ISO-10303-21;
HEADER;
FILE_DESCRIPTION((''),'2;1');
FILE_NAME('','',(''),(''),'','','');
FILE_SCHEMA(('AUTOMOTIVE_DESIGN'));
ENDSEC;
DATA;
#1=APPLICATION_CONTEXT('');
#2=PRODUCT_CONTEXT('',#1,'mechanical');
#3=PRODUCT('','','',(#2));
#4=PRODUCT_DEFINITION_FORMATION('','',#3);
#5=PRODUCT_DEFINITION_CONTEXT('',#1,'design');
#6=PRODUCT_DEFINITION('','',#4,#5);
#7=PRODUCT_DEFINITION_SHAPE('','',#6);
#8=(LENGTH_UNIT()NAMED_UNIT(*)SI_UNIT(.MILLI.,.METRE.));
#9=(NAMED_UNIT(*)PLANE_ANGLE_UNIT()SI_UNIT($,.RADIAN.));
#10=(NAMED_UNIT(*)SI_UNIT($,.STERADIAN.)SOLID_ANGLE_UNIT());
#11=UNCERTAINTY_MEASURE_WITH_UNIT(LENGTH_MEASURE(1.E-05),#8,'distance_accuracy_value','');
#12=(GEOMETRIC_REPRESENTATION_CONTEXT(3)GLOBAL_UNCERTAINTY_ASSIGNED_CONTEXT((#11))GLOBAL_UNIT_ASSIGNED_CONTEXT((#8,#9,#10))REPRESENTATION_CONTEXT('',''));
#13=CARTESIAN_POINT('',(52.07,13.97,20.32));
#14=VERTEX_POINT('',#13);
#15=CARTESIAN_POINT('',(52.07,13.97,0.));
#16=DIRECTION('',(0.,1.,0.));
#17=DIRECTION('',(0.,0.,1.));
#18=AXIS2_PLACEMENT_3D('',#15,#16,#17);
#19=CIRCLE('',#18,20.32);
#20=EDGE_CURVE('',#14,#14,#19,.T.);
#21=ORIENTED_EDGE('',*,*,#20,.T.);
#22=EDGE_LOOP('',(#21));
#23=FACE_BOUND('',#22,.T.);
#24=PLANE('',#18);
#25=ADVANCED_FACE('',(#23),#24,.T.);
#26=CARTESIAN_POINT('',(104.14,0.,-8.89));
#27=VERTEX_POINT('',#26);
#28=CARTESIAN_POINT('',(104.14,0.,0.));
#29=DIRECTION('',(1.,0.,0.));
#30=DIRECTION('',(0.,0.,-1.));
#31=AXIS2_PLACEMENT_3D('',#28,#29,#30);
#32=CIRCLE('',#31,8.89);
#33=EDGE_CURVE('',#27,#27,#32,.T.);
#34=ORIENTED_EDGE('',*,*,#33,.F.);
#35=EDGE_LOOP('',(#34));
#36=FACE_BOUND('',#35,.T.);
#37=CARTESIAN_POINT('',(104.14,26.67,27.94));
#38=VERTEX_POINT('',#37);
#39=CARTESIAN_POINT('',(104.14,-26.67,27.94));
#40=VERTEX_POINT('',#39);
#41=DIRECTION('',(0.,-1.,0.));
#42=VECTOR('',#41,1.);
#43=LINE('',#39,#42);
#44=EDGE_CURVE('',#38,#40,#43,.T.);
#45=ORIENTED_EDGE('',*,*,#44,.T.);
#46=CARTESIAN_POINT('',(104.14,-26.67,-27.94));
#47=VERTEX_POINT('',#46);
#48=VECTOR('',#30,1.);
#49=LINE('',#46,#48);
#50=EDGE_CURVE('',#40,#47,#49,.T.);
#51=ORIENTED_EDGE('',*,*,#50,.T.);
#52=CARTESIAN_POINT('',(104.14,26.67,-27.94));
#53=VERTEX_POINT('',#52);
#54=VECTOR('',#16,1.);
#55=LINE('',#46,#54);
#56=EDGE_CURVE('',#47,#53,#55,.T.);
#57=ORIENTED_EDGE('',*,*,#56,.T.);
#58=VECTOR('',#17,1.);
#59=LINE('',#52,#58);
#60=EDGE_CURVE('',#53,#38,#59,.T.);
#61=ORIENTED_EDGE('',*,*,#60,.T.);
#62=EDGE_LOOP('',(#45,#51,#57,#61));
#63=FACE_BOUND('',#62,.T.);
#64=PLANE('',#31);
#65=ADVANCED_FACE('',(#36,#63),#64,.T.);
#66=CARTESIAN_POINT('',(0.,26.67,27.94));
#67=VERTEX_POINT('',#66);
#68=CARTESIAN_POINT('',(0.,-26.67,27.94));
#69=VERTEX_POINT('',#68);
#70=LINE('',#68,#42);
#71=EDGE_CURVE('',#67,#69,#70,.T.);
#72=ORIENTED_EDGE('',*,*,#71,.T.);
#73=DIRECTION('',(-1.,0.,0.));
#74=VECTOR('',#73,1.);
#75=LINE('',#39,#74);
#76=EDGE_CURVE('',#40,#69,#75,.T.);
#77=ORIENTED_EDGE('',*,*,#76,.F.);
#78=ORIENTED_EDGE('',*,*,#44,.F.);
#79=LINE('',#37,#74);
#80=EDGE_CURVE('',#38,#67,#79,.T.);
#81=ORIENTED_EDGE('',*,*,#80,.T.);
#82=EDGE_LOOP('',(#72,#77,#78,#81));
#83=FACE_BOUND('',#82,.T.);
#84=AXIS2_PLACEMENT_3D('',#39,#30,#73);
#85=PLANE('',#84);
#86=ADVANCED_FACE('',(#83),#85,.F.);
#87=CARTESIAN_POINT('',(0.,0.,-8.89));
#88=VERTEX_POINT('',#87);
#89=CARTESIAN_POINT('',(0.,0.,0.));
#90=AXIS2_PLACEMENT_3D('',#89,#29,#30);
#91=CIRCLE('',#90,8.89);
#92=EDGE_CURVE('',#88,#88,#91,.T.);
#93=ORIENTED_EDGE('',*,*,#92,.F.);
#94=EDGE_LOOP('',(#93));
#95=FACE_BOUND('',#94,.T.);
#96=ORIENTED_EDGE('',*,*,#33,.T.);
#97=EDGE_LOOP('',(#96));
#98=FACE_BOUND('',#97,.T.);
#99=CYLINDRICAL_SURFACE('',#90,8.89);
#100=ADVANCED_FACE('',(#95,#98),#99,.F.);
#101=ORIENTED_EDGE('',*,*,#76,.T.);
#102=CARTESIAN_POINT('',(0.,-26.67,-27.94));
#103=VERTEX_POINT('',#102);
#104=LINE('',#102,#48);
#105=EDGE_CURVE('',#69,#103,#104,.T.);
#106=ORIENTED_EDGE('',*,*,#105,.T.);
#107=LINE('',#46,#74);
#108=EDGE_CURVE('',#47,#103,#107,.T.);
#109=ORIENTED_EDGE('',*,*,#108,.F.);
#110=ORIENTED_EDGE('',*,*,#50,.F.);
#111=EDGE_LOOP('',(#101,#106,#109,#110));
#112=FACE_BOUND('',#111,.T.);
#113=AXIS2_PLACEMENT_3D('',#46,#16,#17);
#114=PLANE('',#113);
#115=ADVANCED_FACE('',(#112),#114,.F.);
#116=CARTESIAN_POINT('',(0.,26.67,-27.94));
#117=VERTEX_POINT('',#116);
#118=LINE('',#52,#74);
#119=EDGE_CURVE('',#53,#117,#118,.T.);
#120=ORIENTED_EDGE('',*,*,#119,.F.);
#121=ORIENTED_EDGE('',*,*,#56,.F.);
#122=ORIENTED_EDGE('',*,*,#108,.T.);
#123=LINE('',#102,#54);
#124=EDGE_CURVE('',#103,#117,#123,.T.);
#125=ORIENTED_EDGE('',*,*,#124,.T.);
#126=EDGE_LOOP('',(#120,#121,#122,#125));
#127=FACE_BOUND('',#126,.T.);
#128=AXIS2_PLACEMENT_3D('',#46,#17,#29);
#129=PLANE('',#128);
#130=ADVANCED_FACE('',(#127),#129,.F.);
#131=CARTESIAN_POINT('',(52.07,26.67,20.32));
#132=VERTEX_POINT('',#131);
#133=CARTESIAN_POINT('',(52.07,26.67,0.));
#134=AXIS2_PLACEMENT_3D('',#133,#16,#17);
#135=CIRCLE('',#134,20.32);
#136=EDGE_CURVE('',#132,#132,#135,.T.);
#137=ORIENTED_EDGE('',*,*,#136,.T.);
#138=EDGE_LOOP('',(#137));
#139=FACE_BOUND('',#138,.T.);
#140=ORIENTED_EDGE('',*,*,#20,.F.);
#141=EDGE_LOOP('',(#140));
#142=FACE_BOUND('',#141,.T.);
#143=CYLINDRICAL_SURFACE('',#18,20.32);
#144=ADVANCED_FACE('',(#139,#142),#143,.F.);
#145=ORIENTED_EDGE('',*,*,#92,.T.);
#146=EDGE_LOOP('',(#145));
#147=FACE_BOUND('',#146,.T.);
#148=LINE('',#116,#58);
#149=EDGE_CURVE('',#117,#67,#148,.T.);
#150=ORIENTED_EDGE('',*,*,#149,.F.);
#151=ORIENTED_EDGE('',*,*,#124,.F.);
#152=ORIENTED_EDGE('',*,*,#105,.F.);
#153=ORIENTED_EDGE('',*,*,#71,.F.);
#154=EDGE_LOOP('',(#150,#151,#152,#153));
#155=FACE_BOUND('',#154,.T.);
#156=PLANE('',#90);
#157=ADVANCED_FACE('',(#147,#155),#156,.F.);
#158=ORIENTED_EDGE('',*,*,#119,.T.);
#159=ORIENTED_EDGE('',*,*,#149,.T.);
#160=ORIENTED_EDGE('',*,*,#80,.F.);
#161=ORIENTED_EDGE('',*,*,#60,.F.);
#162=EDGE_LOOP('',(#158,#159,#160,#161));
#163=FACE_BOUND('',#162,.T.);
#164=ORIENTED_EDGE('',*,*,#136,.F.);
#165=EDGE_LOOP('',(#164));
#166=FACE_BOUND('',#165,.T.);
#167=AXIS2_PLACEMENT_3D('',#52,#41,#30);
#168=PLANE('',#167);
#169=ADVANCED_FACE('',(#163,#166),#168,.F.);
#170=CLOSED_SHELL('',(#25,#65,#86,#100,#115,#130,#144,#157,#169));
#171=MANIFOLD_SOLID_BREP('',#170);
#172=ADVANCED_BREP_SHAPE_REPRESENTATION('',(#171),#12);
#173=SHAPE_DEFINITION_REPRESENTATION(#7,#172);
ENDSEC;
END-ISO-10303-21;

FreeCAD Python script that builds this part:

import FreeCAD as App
import Part
import Sketcher
Q = App.Units.Quantity


def add_polygon(sketch, points):
    """Adds a closed chain of lines whose ends are joined by coincident constraints."""
    first, n = sketch.GeometryCount, len(points)
    for a, b in zip(points, points[1:] + points[:1]):
        sketch.addGeometry(Part.LineSegment(App.Vector(*a, 0), App.Vector(*b, 0)), False)
    for i in range(n):
        sketch.addConstraint(Sketcher.Constraint("Coincident", first + i, 2, first + (i + 1) % n, 1))

doc = App.newDocument("Part")
params = doc.addObject("Spreadsheet::Sheet", "Params")
for row, (alias, value) in enumerate([
    ("sketch1_width", "2.1 in"),
    ("sketch1_height", "2.2 in"),
    ("pad1_length", "4.1 in"),
    ("sketch2_diameter", "0.7 in"),
    ("sketch3_diameter", "1.6 in"),
    ("pocket2_length", "0.5 in"),
], start=1):
    params.set(f"A{row}", alias)
    params.set(f"B{row}", "=" + value)
    params.setAlias(f"B{row}", alias)

body = doc.addObject("PartDesign::Body", "Body")

sketch1 = doc.addObject("Sketcher::SketchObject", "Sketch")
body.addObject(sketch1)
sketch1.AttachmentSupport = (doc.YZ_Plane, [""])
sketch1.MapMode = "FlatFace"
add_polygon(sketch1, [(26.67, 27.94), (-26.67, 27.94), (-26.67, -27.94), (26.67, -27.94)])
sketch1.addConstraint([
    Sketcher.Constraint("Horizontal", 0),
    Sketcher.Constraint("Vertical", 1),
    Sketcher.Constraint("Horizontal", 2),
    Sketcher.Constraint("Vertical", 3),
    Sketcher.Constraint("Symmetric", 0, 2, 2, 2, -1, 1),
    Sketcher.Constraint("DistanceX", 0, 2, 0, 1, Q("2.1 in")),
    Sketcher.Constraint("DistanceY", 1, 2, 1, 1, Q("2.2 in")),
])
sketch1.setExpression("Constraints[9]", "Params.sketch1_width")
sketch1.setExpression("Constraints[10]", "Params.sketch1_height")
pad1 = doc.addObject("PartDesign::Pad", "Pad")
body.addObject(pad1)
pad1.Profile = sketch1
pad1.setExpression("Length", "Params.pad1_length")

sketch2 = doc.addObject("Sketcher::SketchObject", "Sketch001")
body.addObject(sketch2)
sketch2.AttachmentSupport = (doc.YZ_Plane, [""])
sketch2.MapMode = "FlatFace"
sketch2.AttachmentOffset = App.Placement(App.Vector(0, 0, 4.1 * 25.4), App.Rotation())
sketch2.addGeometry(Part.Circle(App.Vector(0, 0, 0), App.Vector(0, 0, 1), 8.89), False)
sketch2.addConstraint([
    Sketcher.Constraint("Coincident", 0, 3, -1, 1),
    Sketcher.Constraint("Diameter", 0, Q("0.7 in")),
])
sketch2.setExpression("Constraints[1]", "Params.sketch2_diameter")
pocket1 = doc.addObject("PartDesign::Pocket", "Pocket")
body.addObject(pocket1)
pocket1.Profile = sketch2
pocket1.Type = "ThroughAll"

sketch3 = doc.addObject("Sketcher::SketchObject", "Sketch002")
body.addObject(sketch3)
sketch3.AttachmentSupport = (doc.XZ_Plane, [""])
sketch3.MapMode = "FlatFace"
sketch3.AttachmentOffset = App.Placement(App.Vector(0, 0, -1.05 * 25.4), App.Rotation())
sketch3.addGeometry(Part.Circle(App.Vector(52.07, 0, 0), App.Vector(0, 0, 1), 20.32), False)
sketch3.addConstraint([
    Sketcher.Constraint("PointOnObject", 0, 3, -1),
    Sketcher.Constraint("Diameter", 0, Q("1.6 in")),
    Sketcher.Constraint("DistanceX", -1, 1, 0, 3, Q("2.05 in")),
])
sketch3.setExpression("Constraints[1]", "Params.sketch3_diameter")
pocket2 = doc.addObject("PartDesign::Pocket", "Pocket001")
body.addObject(pocket2)
pocket2.Profile = sketch3
pocket2.setExpression("Length", "Params.pocket2_length")
pocket2.Reversed = True

doc.recompute()
